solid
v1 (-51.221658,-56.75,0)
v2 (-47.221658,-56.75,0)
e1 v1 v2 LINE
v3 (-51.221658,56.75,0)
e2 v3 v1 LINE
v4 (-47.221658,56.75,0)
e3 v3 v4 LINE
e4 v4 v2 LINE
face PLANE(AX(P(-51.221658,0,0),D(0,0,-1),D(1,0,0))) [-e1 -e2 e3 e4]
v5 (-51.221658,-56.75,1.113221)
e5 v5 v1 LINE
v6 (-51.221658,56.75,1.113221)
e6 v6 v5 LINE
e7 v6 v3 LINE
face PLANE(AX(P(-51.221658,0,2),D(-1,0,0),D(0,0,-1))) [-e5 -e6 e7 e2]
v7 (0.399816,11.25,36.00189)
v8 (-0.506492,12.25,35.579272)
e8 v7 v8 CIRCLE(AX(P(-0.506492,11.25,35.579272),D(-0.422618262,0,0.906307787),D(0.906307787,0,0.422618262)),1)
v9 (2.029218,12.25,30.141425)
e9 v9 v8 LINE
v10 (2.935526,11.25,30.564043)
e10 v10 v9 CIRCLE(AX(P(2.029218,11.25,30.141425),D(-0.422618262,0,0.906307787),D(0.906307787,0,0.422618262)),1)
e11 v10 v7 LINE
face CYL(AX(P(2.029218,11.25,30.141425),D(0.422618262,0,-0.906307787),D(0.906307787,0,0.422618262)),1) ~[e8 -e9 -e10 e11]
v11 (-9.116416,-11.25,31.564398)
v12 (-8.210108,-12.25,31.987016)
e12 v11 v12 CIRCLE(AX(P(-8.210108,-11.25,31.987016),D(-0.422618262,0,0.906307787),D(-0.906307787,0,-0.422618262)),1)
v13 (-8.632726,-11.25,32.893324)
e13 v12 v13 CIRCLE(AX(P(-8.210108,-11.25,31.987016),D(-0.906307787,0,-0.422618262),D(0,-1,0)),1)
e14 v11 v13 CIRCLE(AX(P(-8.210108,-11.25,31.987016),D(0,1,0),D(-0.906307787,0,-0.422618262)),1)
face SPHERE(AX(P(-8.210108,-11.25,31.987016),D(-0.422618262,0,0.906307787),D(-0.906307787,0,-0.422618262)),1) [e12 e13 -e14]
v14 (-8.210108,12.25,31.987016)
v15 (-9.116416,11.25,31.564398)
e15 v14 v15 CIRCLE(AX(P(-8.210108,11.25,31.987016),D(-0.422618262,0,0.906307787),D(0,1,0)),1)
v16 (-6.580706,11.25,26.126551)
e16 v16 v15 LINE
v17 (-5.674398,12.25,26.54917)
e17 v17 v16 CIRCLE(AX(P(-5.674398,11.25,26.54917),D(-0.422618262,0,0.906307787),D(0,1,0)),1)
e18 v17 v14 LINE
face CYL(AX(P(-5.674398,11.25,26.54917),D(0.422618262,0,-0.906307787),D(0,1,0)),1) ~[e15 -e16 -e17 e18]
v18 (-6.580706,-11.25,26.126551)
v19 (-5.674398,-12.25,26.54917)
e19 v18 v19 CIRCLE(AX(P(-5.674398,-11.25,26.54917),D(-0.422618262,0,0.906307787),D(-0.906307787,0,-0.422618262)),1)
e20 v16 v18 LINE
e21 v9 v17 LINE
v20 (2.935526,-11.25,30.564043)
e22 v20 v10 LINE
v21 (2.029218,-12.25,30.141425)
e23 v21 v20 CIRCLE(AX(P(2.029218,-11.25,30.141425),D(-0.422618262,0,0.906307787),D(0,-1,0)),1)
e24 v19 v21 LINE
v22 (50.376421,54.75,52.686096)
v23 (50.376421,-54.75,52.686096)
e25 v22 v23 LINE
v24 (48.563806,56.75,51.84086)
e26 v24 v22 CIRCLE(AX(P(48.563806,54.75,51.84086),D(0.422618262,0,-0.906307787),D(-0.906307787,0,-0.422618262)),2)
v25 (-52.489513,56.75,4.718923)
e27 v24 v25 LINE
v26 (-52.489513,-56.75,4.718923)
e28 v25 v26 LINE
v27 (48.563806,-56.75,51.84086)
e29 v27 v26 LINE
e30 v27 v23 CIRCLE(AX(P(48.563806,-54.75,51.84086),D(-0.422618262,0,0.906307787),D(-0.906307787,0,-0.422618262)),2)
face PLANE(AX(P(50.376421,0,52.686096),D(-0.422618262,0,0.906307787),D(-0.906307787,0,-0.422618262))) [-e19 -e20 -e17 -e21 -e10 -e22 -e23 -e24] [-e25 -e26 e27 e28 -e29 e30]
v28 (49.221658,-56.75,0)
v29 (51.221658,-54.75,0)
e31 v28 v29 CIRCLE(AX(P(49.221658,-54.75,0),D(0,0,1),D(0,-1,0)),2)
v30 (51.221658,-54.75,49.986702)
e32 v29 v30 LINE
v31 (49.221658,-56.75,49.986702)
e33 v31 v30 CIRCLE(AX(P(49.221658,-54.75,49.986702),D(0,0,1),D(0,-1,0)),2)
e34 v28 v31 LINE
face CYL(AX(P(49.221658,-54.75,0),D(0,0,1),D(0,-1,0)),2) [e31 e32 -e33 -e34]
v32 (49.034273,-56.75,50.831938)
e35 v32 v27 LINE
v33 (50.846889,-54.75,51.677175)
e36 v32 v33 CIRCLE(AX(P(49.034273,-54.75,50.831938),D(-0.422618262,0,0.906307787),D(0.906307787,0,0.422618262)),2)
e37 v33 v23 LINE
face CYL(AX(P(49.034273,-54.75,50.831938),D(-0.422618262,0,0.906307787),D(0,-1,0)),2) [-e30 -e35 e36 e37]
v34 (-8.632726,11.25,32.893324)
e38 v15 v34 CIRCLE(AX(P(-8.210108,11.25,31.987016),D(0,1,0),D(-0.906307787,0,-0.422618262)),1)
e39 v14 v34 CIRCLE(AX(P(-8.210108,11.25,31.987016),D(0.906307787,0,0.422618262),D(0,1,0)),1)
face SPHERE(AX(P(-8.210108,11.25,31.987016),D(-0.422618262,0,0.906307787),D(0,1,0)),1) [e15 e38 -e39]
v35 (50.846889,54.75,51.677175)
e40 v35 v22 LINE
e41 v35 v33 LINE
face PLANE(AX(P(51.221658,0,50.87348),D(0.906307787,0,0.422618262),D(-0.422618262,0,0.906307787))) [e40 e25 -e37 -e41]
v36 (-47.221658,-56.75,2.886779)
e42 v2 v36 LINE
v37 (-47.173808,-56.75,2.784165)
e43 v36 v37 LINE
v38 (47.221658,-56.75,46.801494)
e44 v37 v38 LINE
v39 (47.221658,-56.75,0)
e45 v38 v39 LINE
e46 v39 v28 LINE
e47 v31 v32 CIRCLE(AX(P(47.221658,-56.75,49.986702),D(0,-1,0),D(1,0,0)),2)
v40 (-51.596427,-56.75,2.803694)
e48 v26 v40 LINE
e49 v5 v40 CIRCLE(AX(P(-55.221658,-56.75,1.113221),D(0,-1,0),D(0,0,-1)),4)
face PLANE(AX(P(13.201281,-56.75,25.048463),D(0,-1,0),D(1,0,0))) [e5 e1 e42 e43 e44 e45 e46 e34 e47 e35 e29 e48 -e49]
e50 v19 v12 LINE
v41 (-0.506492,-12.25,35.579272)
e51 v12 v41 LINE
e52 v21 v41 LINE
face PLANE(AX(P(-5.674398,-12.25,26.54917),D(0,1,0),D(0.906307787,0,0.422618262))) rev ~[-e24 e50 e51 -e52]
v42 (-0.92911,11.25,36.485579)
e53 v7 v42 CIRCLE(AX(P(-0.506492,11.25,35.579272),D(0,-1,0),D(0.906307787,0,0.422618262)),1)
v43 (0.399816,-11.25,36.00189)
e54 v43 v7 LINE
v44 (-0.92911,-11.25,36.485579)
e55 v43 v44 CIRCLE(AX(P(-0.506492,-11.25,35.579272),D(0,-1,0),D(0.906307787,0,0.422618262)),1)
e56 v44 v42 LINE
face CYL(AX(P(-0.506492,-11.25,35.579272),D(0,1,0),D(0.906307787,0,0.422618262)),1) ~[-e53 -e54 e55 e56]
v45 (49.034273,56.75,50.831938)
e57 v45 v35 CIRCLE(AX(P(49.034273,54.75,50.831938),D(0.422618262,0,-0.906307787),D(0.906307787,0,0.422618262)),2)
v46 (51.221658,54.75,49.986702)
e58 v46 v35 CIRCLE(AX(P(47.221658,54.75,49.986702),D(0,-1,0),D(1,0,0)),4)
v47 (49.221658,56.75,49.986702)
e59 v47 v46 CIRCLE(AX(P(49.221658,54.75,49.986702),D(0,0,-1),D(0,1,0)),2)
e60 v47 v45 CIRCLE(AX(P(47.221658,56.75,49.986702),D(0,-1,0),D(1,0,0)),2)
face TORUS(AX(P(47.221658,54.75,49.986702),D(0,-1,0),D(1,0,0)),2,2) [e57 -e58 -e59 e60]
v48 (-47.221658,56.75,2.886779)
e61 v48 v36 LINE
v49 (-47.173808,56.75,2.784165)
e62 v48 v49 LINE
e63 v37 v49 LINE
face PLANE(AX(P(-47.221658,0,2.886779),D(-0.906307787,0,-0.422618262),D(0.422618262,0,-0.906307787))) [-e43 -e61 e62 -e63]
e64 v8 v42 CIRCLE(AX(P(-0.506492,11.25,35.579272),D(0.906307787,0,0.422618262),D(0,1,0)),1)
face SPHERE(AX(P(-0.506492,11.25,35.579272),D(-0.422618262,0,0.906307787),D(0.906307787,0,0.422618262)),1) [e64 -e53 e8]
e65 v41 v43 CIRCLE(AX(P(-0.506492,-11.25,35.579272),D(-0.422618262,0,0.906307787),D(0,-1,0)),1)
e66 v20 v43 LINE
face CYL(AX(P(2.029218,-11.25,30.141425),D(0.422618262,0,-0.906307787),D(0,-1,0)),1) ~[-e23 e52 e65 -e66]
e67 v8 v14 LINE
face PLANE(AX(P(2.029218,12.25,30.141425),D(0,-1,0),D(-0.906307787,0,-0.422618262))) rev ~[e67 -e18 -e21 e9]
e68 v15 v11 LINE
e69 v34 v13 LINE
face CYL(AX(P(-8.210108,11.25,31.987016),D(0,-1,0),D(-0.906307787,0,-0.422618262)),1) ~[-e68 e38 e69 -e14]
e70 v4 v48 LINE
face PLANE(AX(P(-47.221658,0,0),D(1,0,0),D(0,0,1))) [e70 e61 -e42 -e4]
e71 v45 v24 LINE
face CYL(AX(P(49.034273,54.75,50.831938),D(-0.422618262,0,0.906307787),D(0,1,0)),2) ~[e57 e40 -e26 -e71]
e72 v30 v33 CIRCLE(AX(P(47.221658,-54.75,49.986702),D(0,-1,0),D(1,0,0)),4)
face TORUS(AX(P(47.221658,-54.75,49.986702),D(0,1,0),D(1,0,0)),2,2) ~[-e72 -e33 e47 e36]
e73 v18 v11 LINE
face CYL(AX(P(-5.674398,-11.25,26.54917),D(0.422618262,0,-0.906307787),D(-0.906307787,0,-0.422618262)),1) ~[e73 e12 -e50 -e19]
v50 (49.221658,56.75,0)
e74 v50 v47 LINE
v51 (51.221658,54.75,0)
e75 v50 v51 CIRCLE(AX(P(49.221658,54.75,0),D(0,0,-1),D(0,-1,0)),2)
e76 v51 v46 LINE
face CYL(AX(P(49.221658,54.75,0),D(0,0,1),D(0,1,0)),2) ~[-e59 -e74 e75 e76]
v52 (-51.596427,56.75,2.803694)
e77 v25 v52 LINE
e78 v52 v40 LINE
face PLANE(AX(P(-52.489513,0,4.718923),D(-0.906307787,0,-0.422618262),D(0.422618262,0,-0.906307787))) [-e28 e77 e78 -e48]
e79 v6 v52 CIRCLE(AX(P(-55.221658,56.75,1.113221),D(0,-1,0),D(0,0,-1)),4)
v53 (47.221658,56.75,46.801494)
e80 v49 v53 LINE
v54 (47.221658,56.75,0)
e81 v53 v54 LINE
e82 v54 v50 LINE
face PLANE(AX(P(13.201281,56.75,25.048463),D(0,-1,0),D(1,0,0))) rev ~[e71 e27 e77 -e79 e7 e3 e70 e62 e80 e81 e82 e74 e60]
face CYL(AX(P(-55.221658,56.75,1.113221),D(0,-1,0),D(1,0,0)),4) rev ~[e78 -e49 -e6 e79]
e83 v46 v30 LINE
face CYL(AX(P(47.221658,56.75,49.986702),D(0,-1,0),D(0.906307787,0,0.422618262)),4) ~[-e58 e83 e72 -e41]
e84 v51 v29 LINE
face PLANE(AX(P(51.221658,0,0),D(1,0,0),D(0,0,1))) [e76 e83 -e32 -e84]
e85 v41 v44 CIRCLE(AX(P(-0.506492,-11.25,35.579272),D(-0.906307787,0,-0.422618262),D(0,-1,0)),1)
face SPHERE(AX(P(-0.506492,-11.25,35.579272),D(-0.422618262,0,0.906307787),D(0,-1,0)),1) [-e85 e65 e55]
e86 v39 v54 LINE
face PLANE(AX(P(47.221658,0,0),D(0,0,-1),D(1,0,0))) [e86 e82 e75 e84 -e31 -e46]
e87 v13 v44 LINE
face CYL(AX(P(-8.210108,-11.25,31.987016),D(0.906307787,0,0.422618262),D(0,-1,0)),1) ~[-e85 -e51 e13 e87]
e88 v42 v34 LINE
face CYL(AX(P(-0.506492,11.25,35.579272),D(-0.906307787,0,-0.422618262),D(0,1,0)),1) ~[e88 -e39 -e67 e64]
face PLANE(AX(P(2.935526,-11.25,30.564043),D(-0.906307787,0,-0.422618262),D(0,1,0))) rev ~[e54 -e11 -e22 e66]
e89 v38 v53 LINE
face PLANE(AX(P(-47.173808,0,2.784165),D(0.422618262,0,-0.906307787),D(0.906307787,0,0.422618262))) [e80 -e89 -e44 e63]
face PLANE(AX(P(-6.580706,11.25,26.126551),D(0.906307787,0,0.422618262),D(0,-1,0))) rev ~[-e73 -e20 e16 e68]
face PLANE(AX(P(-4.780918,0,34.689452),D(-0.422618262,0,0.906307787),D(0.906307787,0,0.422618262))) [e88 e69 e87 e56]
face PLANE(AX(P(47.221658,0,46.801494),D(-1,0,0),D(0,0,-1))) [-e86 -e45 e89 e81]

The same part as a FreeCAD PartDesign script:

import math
import FreeCAD as App
import Part
import Sketcher
from FreeCAD import Vector
Q = App.Units.Quantity


def edges_at(feature, points):
    """Names of the edges that pass closest to the given points."""
    edges = feature.Shape.Edges
    near = lambda p: min(range(len(edges)), key=lambda i: edges[i].distToShape(Part.Vertex(*p))[0])
    return sorted({f"Edge{near(p) + 1}" for p in points})

doc = App.newDocument("Part")
params = doc.addObject("Spreadsheet::Sheet", "Params")
for row, (alias, value) in enumerate([
    ("sketch1_width", "4 mm"),
    ("sketch1_height", "2 mm"),
    ("sketch1_length", "2 mm"),
    ("sketch1_length2", "3 mm"),
    ("sketch1_length3", "113.5 mm"),
    ("pad1_length", "113.5 mm"),
    ("fillet_radius", "4 mm"),
    ("sketch2_radius", "1 mm"),
    ("sketch2_width", "8.5 mm"),
    ("sketch2_height", "22.5 mm"),
    ("pad2_length", "7 mm"),
    ("fillet2_radius", "1 mm"),
    ("fillet3_radius", "2 mm"),
], start=1):
    params.set(f"A{row}", alias)
    params.set(f"B{row}", "=" + value)
    params.setAlias(f"B{row}", alias)

body = doc.addObject("PartDesign::Body", "Body")

# Sketch on XZ plane
sketch1 = body.newObject("Sketcher::SketchObject", "Sketch")
sketch1.AttachmentSupport = (doc.getObject("XZ_Plane"), [""])
sketch1.MapMode = "FlatFace"
sketch1.addGeometry([
    Part.LineSegment(Vector(47.221658, 0, 0), Vector(51.221658, 0, 0)),  # 0
    Part.LineSegment(Vector(51.221658, 0, 0), Vector(51.221658, 50.87348, 0)),  # 1
    Part.LineSegment(Vector(51.221658, 50.87348, 0), Vector(50.376421, 52.686096, 0)),  # 2
    Part.LineSegment(Vector(50.376421, 52.686096, 0), Vector(-52.489513, 4.718923, 0)),  # 3
    Part.LineSegment(Vector(-52.489513, 4.718923, 0), Vector(-51.221658, 2, 0)),  # 4
    Part.LineSegment(Vector(-51.221658, 2, 0), Vector(-51.221658, 0, 0)),  # 5
    Part.LineSegment(Vector(-51.221658, 0, 0), Vector(-47.221658, 0, 0)),  # 6
    Part.LineSegment(Vector(-47.221658, 0, 0), Vector(-47.221658, 2.886779, 0)),  # 7
    Part.LineSegment(Vector(-47.221658, 2.886779, 0), Vector(-47.173808, 2.784165, 0)),  # 8
    Part.LineSegment(Vector(-47.173808, 2.784165, 0), Vector(47.221658, 46.801494, 0)),  # 9
    Part.LineSegment(Vector(47.221658, 46.801494, 0), Vector(47.221658, 0, 0)),  # 10
], False)
sketch1.addConstraint([
    Sketcher.Constraint("Coincident", 0, 2, 1, 1),
    Sketcher.Constraint("Coincident", 1, 2, 2, 1),
    Sketcher.Constraint("Coincident", 2, 2, 3, 1),
    Sketcher.Constraint("Coincident", 3, 2, 4, 1),
    Sketcher.Constraint("Coincident", 4, 2, 5, 1),
    Sketcher.Constraint("Coincident", 5, 2, 6, 1),
    Sketcher.Constraint("Coincident", 6, 2, 7, 1),
    Sketcher.Constraint("Coincident", 7, 2, 8, 1),
    Sketcher.Constraint("Coincident", 8, 2, 9, 1),
    Sketcher.Constraint("Coincident", 9, 2, 10, 1),
    Sketcher.Constraint("Coincident", 10, 2, 0, 1),
    Sketcher.Constraint("Horizontal", 0),
    Sketcher.Constraint("Vertical", 1),
    Sketcher.Constraint("Vertical", 5),
    Sketcher.Constraint("Horizontal", 6),
    Sketcher.Constraint("Vertical", 7),
    Sketcher.Constraint("Vertical", 10),
    Sketcher.Constraint("Symmetric", 0, 2, 5, 2, -1, 1),
    Sketcher.Constraint("Symmetric", 6, 2, 10, 2, -2),
    Sketcher.Constraint("Perpendicular", 2, 3),
    Sketcher.Constraint("Perpendicular", 3, 4),
    Sketcher.Constraint("Parallel", 4, 8),
    Sketcher.Constraint("Perpendicular", 4, 9),
    Sketcher.Constraint("DistanceX", 0, 1, 0, 2, Q("4 mm")),
    Sketcher.Constraint("DistanceY", 5, 2, 5, 1, Q("2 mm")),
    Sketcher.Constraint("Angle", 2, Q("115 deg")),
    Sketcher.Constraint("Distance", 2, Q("2 mm")),
    Sketcher.Constraint("Distance", 4, Q("3 mm")),
    Sketcher.Constraint("Distance", 3, Q("113.5 mm")),
    Sketcher.Constraint("DistanceY", 7, 1, 7, 2, Q("2.886779 mm")),
    Sketcher.Constraint("Distance", 8, Q("0.113221 mm")),
])
sketch1.setExpression("Constraints[23]", "Params.sketch1_width")
sketch1.setExpression("Constraints[24]", "Params.sketch1_height")
sketch1.setExpression("Constraints[26]", "Params.sketch1_length")
sketch1.setExpression("Constraints[27]", "Params.sketch1_length2")
sketch1.setExpression("Constraints[28]", "Params.sketch1_length3")
pad1 = body.newObject("PartDesign::Pad", "Pad")
pad1.Profile = sketch1
pad1.setExpression("Length", "Params.pad1_length")
pad1.Midplane = True
doc.recompute()

fillet = body.newObject("PartDesign::Fillet", "Fillet")
fillet.Base = (pad1, edges_at(pad1, [(51.222, 0, 50.873), (-51.222, 0, 2)]))
fillet.setExpression("Radius", "Params.fillet_radius")

# Sketch on an angled plane
sketch2 = body.newObject("Sketcher::SketchObject", "Sketch001")
sketch2.Placement = App.Placement(Vector(-11.182405, 0, 23.980744), App.Rotation(Vector(0.906307787, 0, 0.422618262), Vector(0, 1, 0), Vector(-0.422618262, 0, 0.906307787), "ZXY"))
sketch2.addGeometry([
    Part.LineSegment(Vector(6.077413, -12.25, 0), Vector(14.577413, -12.25, 0)),  # 0
    Part.ArcOfCircle(Part.Circle(Vector(14.577413, -11.25, 0), Vector(0, 0, 1), 1), math.radians(-90), math.radians(0)),  # 1
    Part.LineSegment(Vector(15.577413, -11.25, 0), Vector(15.577413, 11.25, 0)),  # 2
    Part.ArcOfCircle(Part.Circle(Vector(14.577413, 11.25, 0), Vector(0, 0, 1), 1), math.radians(0), math.radians(90)),  # 3
    Part.LineSegment(Vector(14.577413, 12.25, 0), Vector(6.077413, 12.25, 0)),  # 4
    Part.ArcOfCircle(Part.Circle(Vector(6.077413, 11.25, 0), Vector(0, 0, 1), 1), math.radians(90), math.radians(180)),  # 5
    Part.LineSegment(Vector(5.077413, 11.25, 0), Vector(5.077413, -11.25, 0)),  # 6
    Part.ArcOfCircle(Part.Circle(Vector(6.077413, -11.25, 0), Vector(0, 0, 1), 1), math.radians(180), math.radians(270)),  # 7
], False)
sketch2.addConstraint([
    Sketcher.Constraint("Tangent", 0, 2, 1, 1),
    Sketcher.Constraint("Tangent", 1, 2, 2, 1),
    Sketcher.Constraint("Tangent", 2, 2, 3, 1),
    Sketcher.Constraint("Tangent", 3, 2, 4, 1),
    Sketcher.Constraint("Tangent", 4, 2, 5, 1),
    Sketcher.Constraint("Tangent", 5, 2, 6, 1),
    Sketcher.Constraint("Tangent", 6, 2, 7, 1),
    Sketcher.Constraint("Tangent", 7, 2, 0, 1),
    Sketcher.Constraint("Horizontal", 0),
    Sketcher.Constraint("Vertical", 2),
    Sketcher.Constraint("Horizontal", 4),
    Sketcher.Constraint("Vertical", 6),
    Sketcher.Constraint("Equal", 1, 3),
    Sketcher.Constraint("Equal", 3, 5),
    Sketcher.Constraint("Equal", 5, 7),
    Sketcher.Constraint("Radius", 1, Q("1 mm")),
    Sketcher.Constraint("DistanceX", 0, 1, 0, 2, Q("8.5 mm")),
    Sketcher.Constraint("DistanceY", 2, 1, 2, 2, Q("22.5 mm")),
    Sketcher.Constraint("DistanceY", 1, 3, -1, 1, Q("11.25 mm")),
    Sketcher.Constraint("DistanceX", -1, 1, 1, 3, Q("14.577413 mm")),
])
sketch2.setExpression("Constraints[15]", "Params.sketch2_radius")
sketch2.setExpression("Constraints[16]", "Params.sketch2_width")
sketch2.setExpression("Constraints[17]", "Params.sketch2_height")
pad2 = body.newObject("PartDesign::Pad", "Pad001")
pad2.Profile = sketch2
pad2.setExpression("Length", "Params.pad2_length")
doc.recompute()

fillet2 = body.newObject("PartDesign::Fillet", "Fillet001")
fillet2.Base = (pad2, edges_at(pad2, [(-4.781, -12.25, 34.689)]))
fillet2.setExpression("Radius", "Params.fillet2_radius")
doc.recompute()

fillet3 = body.newObject("PartDesign::Fillet", "Fillet002")
fillet3.Base = (fillet2, edges_at(fillet2, [(51.222, -56.75, 24.993), (51.222, 56.75, 24.993)]))
fillet3.setExpression("Radius", "Params.fillet3_radius")

doc.recompute()
